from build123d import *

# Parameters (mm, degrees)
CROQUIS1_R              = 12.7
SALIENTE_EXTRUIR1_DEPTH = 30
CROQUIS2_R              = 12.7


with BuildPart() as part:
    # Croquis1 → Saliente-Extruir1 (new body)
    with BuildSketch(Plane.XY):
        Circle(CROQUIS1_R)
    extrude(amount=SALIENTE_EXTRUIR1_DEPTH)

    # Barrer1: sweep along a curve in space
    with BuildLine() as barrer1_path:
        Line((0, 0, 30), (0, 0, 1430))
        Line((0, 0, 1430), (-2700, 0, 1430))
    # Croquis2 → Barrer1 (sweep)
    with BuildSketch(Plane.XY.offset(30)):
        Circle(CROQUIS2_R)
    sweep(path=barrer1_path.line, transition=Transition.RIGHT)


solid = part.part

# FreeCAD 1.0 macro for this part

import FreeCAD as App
import Part
import Sketcher

V = App.Vector
Q = App.Units.Quantity

doc = App.newDocument("Part")
body = doc.addObject("PartDesign::Body", "Body")

# Sketch on XY plane
sketch1 = body.newObject("Sketcher::SketchObject", "Sketch")
sketch1.AttachmentSupport = (doc.getObject("XY_Plane"), [""])
sketch1.MapMode = "FlatFace"
sketch1.addGeometry(Part.Circle(V(0, 0, 0), V(0, 0, 1), 12.7), False)
sketch1.addConstraint(Sketcher.Constraint("Coincident", 0, 3, -1, 1))
sketch1.addConstraint(Sketcher.Constraint("Diameter", 0, Q("25.4 mm")))
pad1 = body.newObject("PartDesign::Pad", "Pad")
pad1.Profile = sketch1
pad1.Length = 30

# Sketch on XY plane
sketch2 = body.newObject("Sketcher::SketchObject", "Sketch001")
sketch2.AttachmentSupport = (doc.getObject("XY_Plane"), [""])
sketch2.MapMode = "FlatFace"
sketch2.AttachmentOffset = App.Placement(V(0, 0, 30), App.Rotation())
sketch2.addGeometry(Part.Circle(V(0, 0, 0), V(0, 0, 1), 12.7), False)
sketch2.addConstraint(Sketcher.Constraint("Coincident", 0, 3, -1, 1))
sketch2.addConstraint(Sketcher.Constraint("Diameter", 0, Q("25.4 mm")))

# Sketch on XZ plane
sketch3 = body.newObject("Sketcher::SketchObject", "Sketch002")
sketch3.AttachmentSupport = (doc.getObject("XZ_Plane"), [""])
sketch3.MapMode = "FlatFace"
sketch3.addGeometry(Part.LineSegment(V(0, 30, 0), V(0, 1430, 0)), False)
sketch3.addGeometry(Part.LineSegment(V(0, 1430, 0), V(-2700, 1430, 0)), False)
sketch3.addConstraint(Sketcher.Constraint("Coincident", 0, 2, 1, 1))
sketch3.addConstraint(Sketcher.Constraint("Vertical", 0))
sketch3.addConstraint(Sketcher.Constraint("Horizontal", 1))
sketch3.addConstraint(Sketcher.Constraint("PointOnObject", 0, 1, -2))
sketch3.addConstraint(Sketcher.Constraint("DistanceX", 1, 2, 1, 1, Q("2700 mm")))
sketch3.addConstraint(Sketcher.Constraint("DistanceY", 0, 1, 0, 2, Q("1400 mm")))
sketch3.addConstraint(Sketcher.Constraint("DistanceY", -1, 1, 0, 1, Q("30 mm")))
doc.recompute()

additivepipe = body.newObject("PartDesign::AdditivePipe", "AdditivePipe")
additivepipe.Profile = sketch2
additivepipe.Spine = (sketch3, ["Edge1", "Edge2"])
additivepipe.Transition = "Right corner"

doc.recompute()
